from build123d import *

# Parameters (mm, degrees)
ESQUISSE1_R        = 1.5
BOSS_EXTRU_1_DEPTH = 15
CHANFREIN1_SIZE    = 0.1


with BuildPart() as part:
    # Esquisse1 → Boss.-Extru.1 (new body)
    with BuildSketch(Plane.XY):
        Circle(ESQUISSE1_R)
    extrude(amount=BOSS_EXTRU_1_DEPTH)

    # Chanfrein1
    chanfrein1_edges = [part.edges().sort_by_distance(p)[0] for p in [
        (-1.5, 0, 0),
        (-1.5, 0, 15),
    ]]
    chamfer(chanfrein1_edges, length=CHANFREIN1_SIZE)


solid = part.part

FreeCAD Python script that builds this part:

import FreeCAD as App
import Part
import Sketcher


def edges_at(feature, points):
    """Names of the edges that pass closest to the given points."""
    edges = feature.Shape.Edges
    near = lambda p: min(range(len(edges)), key=lambda i: edges[i].distToShape(Part.Vertex(*p))[0])
    return sorted({f"Edge{near(p) + 1}" for p in points})

doc = App.newDocument("Part")
body = doc.addObject("PartDesign::Body", "Body")

# Sketch on XY plane
sketch1 = doc.addObject("Sketcher::SketchObject", "Sketch")
body.addObject(sketch1)
sketch1.AttachmentSupport = (doc.XY_Plane, [""])
sketch1.MapMode = "FlatFace"
sketch1.addGeometry(Part.Circle(App.Vector(0, 0, 0), App.Vector(0, 0, 1), 1.5), False)
sketch1.addConstraint(Sketcher.Constraint("Coincident", 0, 3, -1, 1))
sketch1.addConstraint(Sketcher.Constraint("Diameter", 0, 3.0))
pad1 = doc.addObject("PartDesign::Pad", "Pad")
body.addObject(pad1)
pad1.Profile = sketch1
pad1.Length = 15
doc.recompute()

chamfer = doc.addObject("PartDesign::Chamfer", "Chamfer")
body.addObject(chamfer)
chamfer.Base = (pad1, edges_at(pad1, [(-1.5, 0, 0), (-1.5, 0, 15)]))
chamfer.Size = 0.1

doc.recompute()
